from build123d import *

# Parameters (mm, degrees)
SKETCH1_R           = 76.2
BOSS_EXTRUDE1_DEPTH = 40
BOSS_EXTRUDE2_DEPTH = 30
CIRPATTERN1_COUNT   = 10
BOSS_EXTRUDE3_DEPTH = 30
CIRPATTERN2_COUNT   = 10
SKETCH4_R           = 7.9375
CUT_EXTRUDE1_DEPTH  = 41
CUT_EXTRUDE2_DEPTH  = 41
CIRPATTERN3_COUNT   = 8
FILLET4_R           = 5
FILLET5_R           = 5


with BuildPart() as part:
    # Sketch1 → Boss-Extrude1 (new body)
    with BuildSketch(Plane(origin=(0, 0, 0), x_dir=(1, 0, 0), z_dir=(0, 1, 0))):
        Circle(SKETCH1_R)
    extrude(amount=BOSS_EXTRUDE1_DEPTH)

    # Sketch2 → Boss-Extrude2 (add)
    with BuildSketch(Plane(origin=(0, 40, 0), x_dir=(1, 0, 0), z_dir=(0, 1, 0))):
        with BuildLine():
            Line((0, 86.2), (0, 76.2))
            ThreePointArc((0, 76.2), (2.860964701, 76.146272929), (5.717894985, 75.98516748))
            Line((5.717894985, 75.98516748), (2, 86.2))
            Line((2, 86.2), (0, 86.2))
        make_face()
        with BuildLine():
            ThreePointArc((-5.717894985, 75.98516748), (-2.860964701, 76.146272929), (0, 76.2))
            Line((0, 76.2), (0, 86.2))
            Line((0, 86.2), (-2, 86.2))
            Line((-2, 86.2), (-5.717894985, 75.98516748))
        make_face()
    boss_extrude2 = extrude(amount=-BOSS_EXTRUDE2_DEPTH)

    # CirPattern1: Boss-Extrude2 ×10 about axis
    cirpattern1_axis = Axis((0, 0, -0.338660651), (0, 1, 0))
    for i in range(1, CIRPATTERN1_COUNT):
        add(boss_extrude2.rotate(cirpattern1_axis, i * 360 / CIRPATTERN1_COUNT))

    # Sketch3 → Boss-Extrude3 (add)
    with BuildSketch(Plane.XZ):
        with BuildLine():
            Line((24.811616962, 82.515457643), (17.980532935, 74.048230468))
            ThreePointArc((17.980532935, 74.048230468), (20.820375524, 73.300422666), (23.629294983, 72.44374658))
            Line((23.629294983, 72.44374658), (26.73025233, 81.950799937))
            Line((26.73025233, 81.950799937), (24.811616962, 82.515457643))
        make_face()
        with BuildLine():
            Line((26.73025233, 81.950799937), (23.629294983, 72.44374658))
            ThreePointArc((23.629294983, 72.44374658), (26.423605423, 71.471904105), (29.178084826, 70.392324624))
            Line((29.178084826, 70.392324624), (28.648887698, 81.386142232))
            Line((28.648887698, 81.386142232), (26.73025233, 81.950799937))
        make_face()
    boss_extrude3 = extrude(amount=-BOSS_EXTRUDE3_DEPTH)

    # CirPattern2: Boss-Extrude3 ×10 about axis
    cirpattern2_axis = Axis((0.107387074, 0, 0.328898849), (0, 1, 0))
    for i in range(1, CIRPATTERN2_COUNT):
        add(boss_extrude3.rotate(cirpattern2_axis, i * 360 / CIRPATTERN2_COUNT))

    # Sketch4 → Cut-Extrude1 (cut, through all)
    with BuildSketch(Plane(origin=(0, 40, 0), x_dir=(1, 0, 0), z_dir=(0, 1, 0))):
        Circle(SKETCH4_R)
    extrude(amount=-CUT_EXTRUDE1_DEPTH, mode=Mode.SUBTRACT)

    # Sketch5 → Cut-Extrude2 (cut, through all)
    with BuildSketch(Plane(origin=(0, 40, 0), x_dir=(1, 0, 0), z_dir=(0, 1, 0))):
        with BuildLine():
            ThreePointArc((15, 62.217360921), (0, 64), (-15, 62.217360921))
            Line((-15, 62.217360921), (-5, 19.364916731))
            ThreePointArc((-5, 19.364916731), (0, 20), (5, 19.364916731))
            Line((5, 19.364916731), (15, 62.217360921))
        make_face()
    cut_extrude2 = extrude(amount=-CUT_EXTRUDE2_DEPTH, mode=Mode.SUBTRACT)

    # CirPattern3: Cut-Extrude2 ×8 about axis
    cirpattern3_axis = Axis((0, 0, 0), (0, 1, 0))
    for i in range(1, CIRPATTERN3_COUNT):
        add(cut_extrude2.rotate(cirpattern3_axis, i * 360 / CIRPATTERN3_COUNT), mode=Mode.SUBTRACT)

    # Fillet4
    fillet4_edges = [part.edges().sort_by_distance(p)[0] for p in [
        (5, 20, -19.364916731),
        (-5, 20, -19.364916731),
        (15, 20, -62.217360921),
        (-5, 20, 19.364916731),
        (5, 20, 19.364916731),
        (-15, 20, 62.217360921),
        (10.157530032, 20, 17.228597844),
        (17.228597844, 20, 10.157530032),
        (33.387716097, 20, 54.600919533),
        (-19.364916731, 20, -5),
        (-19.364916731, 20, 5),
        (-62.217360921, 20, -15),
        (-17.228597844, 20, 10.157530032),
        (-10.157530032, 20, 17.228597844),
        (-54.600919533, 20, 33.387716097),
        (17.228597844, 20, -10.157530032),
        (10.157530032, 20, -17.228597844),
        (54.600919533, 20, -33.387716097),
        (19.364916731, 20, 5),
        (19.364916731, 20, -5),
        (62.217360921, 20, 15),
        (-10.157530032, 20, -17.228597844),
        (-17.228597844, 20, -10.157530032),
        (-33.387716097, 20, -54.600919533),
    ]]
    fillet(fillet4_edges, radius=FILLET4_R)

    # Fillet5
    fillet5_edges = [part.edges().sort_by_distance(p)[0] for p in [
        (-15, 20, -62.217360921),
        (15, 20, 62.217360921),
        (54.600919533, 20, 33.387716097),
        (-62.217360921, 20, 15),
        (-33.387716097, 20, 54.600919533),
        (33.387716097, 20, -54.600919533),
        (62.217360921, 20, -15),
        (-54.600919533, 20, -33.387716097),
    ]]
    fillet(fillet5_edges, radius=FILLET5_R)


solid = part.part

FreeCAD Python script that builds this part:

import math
import FreeCAD as App
import Part
import Sketcher
from FreeCAD import Vector
Q = App.Units.Quantity


def edges_at(feature, points):
    """Names of the edges that pass closest to the given points."""
    edges = feature.Shape.Edges
    near = lambda p: min(range(len(edges)), key=lambda i: edges[i].distToShape(Part.Vertex(*p))[0])
    return sorted({f"Edge{near(p) + 1}" for p in points})

doc = App.newDocument("Part")
body = doc.addObject("PartDesign::Body", "Body")

sketch1 = doc.addObject("Sketcher::SketchObject", "Sketch")
body.addObject(sketch1)
sketch1.AttachmentSupport = (doc.XZ_Plane, [""])
sketch1.MapMode = "FlatFace"
sketch1.addGeometry(Part.Circle(Vector(0, 0, 0), Vector(0, 0, 1), 76), False)
sketch1.addConstraint(Sketcher.Constraint("Coincident", 0, 3, -1, 1))
sketch1.addConstraint(Sketcher.Constraint("Diameter", 0, 152.4))
pad1 = doc.addObject("PartDesign::Pad", "Pad")
body.addObject(pad1)
pad1.Profile = sketch1
pad1.Length = 40
pad1.Reversed = True

sketch2 = doc.addObject("Sketcher::SketchObject", "Sketch001")
body.addObject(sketch2)
sketch2.AttachmentSupport = (doc.XZ_Plane, [""])
sketch2.MapMode = "FlatFace"
sketch2.AttachmentOffset = App.Placement(Vector(0, 0, -40), App.Rotation())
sketch2.addGeometry(Part.ArcOfCircle(Part.Circle(Vector(0, 0, 0), Vector(0, 0, 1), 76.2), math.radians(-90), math.radians(-85.7)), False)
sketch2.addGeometry(Part.LineSegment(Vector(5.7, -76, 0), Vector(2, -86.2, 0)), False)
sketch2.addGeometry(Part.LineSegment(Vector(2, -86.2, 0), Vector(-2, -86.2, 0)), False)
sketch2.addGeometry(Part.LineSegment(Vector(-2, -86.2, 0), Vector(-5.7, -76, 0)), False)
sketch2.addGeometry(Part.ArcOfCircle(Part.Circle(Vector(0, 0, 0), Vector(0, 0, 1), 76.2), math.radians(-94.3), math.radians(-90)), False)
sketch2.addConstraint(Sketcher.Constraint("Coincident", 0, 2, 1, 1))
sketch2.addConstraint(Sketcher.Constraint("Coincident", 1, 2, 2, 1))
sketch2.addConstraint(Sketcher.Constraint("Coincident", 2, 2, 3, 1))
sketch2.addConstraint(Sketcher.Constraint("Coincident", 3, 2, 4, 1))
sketch2.addConstraint(Sketcher.Constraint("Tangent", 4, 2, 0, 1))
sketch2.addConstraint(Sketcher.Constraint("Horizontal", 2))
sketch2.addConstraint(Sketcher.Constraint("Coincident", 0, 3, -1, 1))
sketch2.addConstraint(Sketcher.Constraint("Equal", 0, 4))
sketch2.addConstraint(Sketcher.Constraint("PointOnObject", 4, 2, -2))
sketch2.addConstraint(Sketcher.Constraint("Horizontal", 0, 2, 3, 2))
sketch2.addConstraint(Sketcher.Constraint("Equal", 1, 3))
sketch2.addConstraint(Sketcher.Constraint("Radius", 0, 76.2))
sketch2.addConstraint(Sketcher.Constraint("DistanceX", 2, 2, 2, 1, 4.0))
sketch2.addConstraint(Sketcher.Constraint("Angle", 1, Q("-110 deg")))
sketch2.addConstraint(Sketcher.Constraint("DistanceY", 1, 2, 4, 2, 10.0))
pad2 = doc.addObject("PartDesign::Pad", "Pad001")
body.addObject(pad2)
pad2.Profile = sketch2
pad2.Length = 30
doc.recompute()

datumline = doc.addObject("PartDesign::Line", "DatumLine")
body.addObject(datumline)
datumline.Placement = App.Placement(Vector(0, 0, -0.338661), App.Rotation(Vector(0, 0, 1), Vector(0, 1, 0)))
polarpattern = doc.addObject("PartDesign::PolarPattern", "PolarPattern")
body.addObject(polarpattern)
polarpattern.Originals = [pad2]
polarpattern.Axis = (datumline, [""])
polarpattern.Angle = 360
polarpattern.Occurrences = 10
body.Tip = polarpattern

sketch3 = doc.addObject("Sketcher::SketchObject", "Sketch002")
body.addObject(sketch3)
sketch3.AttachmentSupport = (doc.XZ_Plane, [""])
sketch3.MapMode = "FlatFace"
sketch3.addGeometry(Part.LineSegment(Vector(24.8, 82.5, 0), Vector(18, 74, 0)), False)
sketch3.addGeometry(Part.ArcOfCircle(Part.Circle(Vector(0, 0, 0), Vector(0, 0, 1), 76.2), math.radians(71.93), math.radians(76.35)), False)
sketch3.addGeometry(Part.ArcOfCircle(Part.Circle(Vector(0, 0, 0), Vector(0, 0, 1), 76.2), math.radians(67.49), math.radians(71.93)), False)
sketch3.addGeometry(Part.LineSegment(Vector(29.2, 70.4, 0), Vector(28.6, 81.4, 0)), False)
sketch3.addGeometry(Part.LineSegment(Vector(28.6, 81.4, 0), Vector(26.7, 82, 0)), False)
sketch3.addGeometry(Part.LineSegment(Vector(26.7, 82, 0), Vector(24.8, 82.5, 0)), False)
sketch3.addConstraint(Sketcher.Constraint("Coincident", 0, 2, 1, 2))
sketch3.addConstraint(Sketcher.Constraint("Tangent", 1, 1, 2, 2))
sketch3.addConstraint(Sketcher.Constraint("Coincident", 2, 1, 3, 1))
sketch3.addConstraint(Sketcher.Constraint("Coincident", 3, 2, 4, 1))
sketch3.addConstraint(Sketcher.Constraint("Coincident", 4, 2, 5, 1))
sketch3.addConstraint(Sketcher.Constraint("Coincident", 5, 2, 0, 1))
sketch3.addConstraint(Sketcher.Constraint("Coincident", 1, 3, -1, 1))
sketch3.addConstraint(Sketcher.Constraint("Equal", 1, 2))
sketch3.addConstraint(Sketcher.Constraint("Parallel", 4, 5))
sketch3.addConstraint(Sketcher.Constraint("Equal", 4, 5))
sketch3.addConstraint(Sketcher.Constraint("Radius", 1, 76.2))
sketch3.addConstraint(Sketcher.Constraint("Distance", 4, 2.0))
sketch3.addConstraint(Sketcher.Constraint("DistanceY", -1, 1, 4, 2, 81.9508))
sketch3.addConstraint(Sketcher.Constraint("Distance", 0, 10.87923))
sketch3.addConstraint(Sketcher.Constraint("DistanceY", -1, 1, 0, 2, 74.04823))
sketch3.addConstraint(Sketcher.Constraint("DistanceX", 1, 1, 2, 1, 5.54879))
sketch3.addConstraint(Sketcher.Constraint("DistanceY", 2, 1, 1, 1, 2.051422))
sketch3.addConstraint(Sketcher.Constraint("DistanceY", 0, 2, 3, 2, 7.337912))
pad3 = doc.addObject("PartDesign::Pad", "Pad002")
body.addObject(pad3)
pad3.Profile = sketch3
pad3.Length = 30
pad3.Reversed = True
doc.recompute()

datumline2 = doc.addObject("PartDesign::Line", "DatumLine001")
body.addObject(datumline2)
datumline2.Placement = App.Placement(Vector(0.107387, 0, 0.328899), App.Rotation(Vector(0, 0, 1), Vector(0, 1, 0)))
polarpattern2 = doc.addObject("PartDesign::PolarPattern", "PolarPattern001")
body.addObject(polarpattern2)
polarpattern2.Originals = [pad3]
polarpattern2.Axis = (datumline2, [""])
polarpattern2.Angle = 360
polarpattern2.Occurrences = 10
body.Tip = polarpattern2

sketch4 = doc.addObject("Sketcher::SketchObject", "Sketch003")
body.addObject(sketch4)
sketch4.AttachmentSupport = (doc.XZ_Plane, [""])
sketch4.MapMode = "FlatFace"
sketch4.AttachmentOffset = App.Placement(Vector(0, 0, -40), App.Rotation())
sketch4.addGeometry(Part.Circle(Vector(0, 0, 0), Vector(0, 0, 1), 8), False)
sketch4.addConstraint(Sketcher.Constraint("Coincident", 0, 3, -1, 1))
sketch4.addConstraint(Sketcher.Constraint("Diameter", 0, 15.875))
pocket1 = doc.addObject("PartDesign::Pocket", "Pocket")
body.addObject(pocket1)
pocket1.Profile = sketch4
pocket1.Type = "ThroughAll"
pocket1.Reversed = True

sketch5 = doc.addObject("Sketcher::SketchObject", "Sketch004")
body.addObject(sketch5)
sketch5.AttachmentSupport = (doc.XZ_Plane, [""])
sketch5.MapMode = "FlatFace"
sketch5.AttachmentOffset = App.Placement(Vector(0, 0, -40), App.Rotation())
sketch5.addGeometry(Part.ArcOfCircle(Part.Circle(Vector(0, 0, 0), Vector(0, 0, 1), 64), math.radians(-104), math.radians(-76)), False)
sketch5.addGeometry(Part.LineSegment(Vector(-15, -62, 0), Vector(-5, -19, 0)), False)
sketch5.addGeometry(Part.ArcOfCircle(Part.Circle(Vector(0, 0, 0), Vector(0, 0, 1), 20), math.radians(-104), math.radians(-76)), False)
sketch5.addGeometry(Part.LineSegment(Vector(5, -19, 0), Vector(15, -62, 0)), False)
sketch5.addConstraint(Sketcher.Constraint("Coincident", 0, 1, 1, 1))
sketch5.addConstraint(Sketcher.Constraint("Coincident", 1, 2, 2, 1))
sketch5.addConstraint(Sketcher.Constraint("Coincident", 2, 2, 3, 1))
sketch5.addConstraint(Sketcher.Constraint("Coincident", 3, 2, 0, 2))
sketch5.addConstraint(Sketcher.Constraint("Coincident", 0, 3, -1, 1))
sketch5.addConstraint(Sketcher.Constraint("Coincident", 2, 3, -1, 1))
sketch5.addConstraint(Sketcher.Constraint("Horizontal", 1, 2, 2, 2))
sketch5.addConstraint(Sketcher.Constraint("Horizontal", 0, 1, 3, 2))
sketch5.addConstraint(Sketcher.Constraint("Radius", 0, 64.0))
sketch5.addConstraint(Sketcher.Constraint("Radius", 2, 20.0))
sketch5.addConstraint(Sketcher.Constraint("DistanceX", 0, 1, -1, 1, 15.0))
sketch5.addConstraint(Sketcher.Constraint("DistanceX", 1, 2, -1, 1, 5.0))
pocket2 = doc.addObject("PartDesign::Pocket", "Pocket001")
body.addObject(pocket2)
pocket2.Profile = sketch5
pocket2.Type = "ThroughAll"
pocket2.Reversed = True
doc.recompute()

polarpattern3 = doc.addObject("PartDesign::PolarPattern", "PolarPattern002")
body.addObject(polarpattern3)
polarpattern3.Originals = [pocket2]
polarpattern3.Axis = (doc.Y_Axis, [""])
polarpattern3.Angle = 360
polarpattern3.Occurrences = 8
body.Tip = polarpattern3
doc.recompute()

fillet = doc.addObject("PartDesign::Fillet", "Fillet")
body.addObject(fillet)
fillet.Base = (polarpattern3, edges_at(polarpattern3, [
    (5, 20, -19.365),
    (-5, 20, -19.365),
    (15, 20, -62.217),
    (-5, 20, 19.365),
    (5, 20, 19.365),
    (-15, 20, 62.217),
    (10.158, 20, 17.229),
    (17.229, 20, 10.158),
    (33.388, 20, 54.601),
    (-19.365, 20, -5),
    (-19.365, 20, 5),
    (-62.217, 20, -15),
    (-17.229, 20, 10.158),
    (-10.158, 20, 17.229),
    (-54.601, 20, 33.388),
    (17.229, 20, -10.158),
    (10.158, 20, -17.229),
    (54.601, 20, -33.388),
    (19.365, 20, 5),
    (19.365, 20, -5),
    (62.217, 20, 15),
    (-10.158, 20, -17.229),
    (-17.229, 20, -10.158),
    (-33.388, 20, -54.601),
]))
fillet.Radius = 5
doc.recompute()

fillet2 = doc.addObject("PartDesign::Fillet", "Fillet001")
body.addObject(fillet2)
fillet2.Base = (fillet, edges_at(fillet, [
    (-15, 20, -62.217),
    (15, 20, 62.217),
    (54.601, 20, 33.388),
    (-62.217, 20, 15),
    (-33.388, 20, 54.601),
    (33.388, 20, -54.601),
    (62.217, 20, -15),
    (-54.601, 20, -33.388),
]))
fillet2.Radius = 5

doc.recompute()
